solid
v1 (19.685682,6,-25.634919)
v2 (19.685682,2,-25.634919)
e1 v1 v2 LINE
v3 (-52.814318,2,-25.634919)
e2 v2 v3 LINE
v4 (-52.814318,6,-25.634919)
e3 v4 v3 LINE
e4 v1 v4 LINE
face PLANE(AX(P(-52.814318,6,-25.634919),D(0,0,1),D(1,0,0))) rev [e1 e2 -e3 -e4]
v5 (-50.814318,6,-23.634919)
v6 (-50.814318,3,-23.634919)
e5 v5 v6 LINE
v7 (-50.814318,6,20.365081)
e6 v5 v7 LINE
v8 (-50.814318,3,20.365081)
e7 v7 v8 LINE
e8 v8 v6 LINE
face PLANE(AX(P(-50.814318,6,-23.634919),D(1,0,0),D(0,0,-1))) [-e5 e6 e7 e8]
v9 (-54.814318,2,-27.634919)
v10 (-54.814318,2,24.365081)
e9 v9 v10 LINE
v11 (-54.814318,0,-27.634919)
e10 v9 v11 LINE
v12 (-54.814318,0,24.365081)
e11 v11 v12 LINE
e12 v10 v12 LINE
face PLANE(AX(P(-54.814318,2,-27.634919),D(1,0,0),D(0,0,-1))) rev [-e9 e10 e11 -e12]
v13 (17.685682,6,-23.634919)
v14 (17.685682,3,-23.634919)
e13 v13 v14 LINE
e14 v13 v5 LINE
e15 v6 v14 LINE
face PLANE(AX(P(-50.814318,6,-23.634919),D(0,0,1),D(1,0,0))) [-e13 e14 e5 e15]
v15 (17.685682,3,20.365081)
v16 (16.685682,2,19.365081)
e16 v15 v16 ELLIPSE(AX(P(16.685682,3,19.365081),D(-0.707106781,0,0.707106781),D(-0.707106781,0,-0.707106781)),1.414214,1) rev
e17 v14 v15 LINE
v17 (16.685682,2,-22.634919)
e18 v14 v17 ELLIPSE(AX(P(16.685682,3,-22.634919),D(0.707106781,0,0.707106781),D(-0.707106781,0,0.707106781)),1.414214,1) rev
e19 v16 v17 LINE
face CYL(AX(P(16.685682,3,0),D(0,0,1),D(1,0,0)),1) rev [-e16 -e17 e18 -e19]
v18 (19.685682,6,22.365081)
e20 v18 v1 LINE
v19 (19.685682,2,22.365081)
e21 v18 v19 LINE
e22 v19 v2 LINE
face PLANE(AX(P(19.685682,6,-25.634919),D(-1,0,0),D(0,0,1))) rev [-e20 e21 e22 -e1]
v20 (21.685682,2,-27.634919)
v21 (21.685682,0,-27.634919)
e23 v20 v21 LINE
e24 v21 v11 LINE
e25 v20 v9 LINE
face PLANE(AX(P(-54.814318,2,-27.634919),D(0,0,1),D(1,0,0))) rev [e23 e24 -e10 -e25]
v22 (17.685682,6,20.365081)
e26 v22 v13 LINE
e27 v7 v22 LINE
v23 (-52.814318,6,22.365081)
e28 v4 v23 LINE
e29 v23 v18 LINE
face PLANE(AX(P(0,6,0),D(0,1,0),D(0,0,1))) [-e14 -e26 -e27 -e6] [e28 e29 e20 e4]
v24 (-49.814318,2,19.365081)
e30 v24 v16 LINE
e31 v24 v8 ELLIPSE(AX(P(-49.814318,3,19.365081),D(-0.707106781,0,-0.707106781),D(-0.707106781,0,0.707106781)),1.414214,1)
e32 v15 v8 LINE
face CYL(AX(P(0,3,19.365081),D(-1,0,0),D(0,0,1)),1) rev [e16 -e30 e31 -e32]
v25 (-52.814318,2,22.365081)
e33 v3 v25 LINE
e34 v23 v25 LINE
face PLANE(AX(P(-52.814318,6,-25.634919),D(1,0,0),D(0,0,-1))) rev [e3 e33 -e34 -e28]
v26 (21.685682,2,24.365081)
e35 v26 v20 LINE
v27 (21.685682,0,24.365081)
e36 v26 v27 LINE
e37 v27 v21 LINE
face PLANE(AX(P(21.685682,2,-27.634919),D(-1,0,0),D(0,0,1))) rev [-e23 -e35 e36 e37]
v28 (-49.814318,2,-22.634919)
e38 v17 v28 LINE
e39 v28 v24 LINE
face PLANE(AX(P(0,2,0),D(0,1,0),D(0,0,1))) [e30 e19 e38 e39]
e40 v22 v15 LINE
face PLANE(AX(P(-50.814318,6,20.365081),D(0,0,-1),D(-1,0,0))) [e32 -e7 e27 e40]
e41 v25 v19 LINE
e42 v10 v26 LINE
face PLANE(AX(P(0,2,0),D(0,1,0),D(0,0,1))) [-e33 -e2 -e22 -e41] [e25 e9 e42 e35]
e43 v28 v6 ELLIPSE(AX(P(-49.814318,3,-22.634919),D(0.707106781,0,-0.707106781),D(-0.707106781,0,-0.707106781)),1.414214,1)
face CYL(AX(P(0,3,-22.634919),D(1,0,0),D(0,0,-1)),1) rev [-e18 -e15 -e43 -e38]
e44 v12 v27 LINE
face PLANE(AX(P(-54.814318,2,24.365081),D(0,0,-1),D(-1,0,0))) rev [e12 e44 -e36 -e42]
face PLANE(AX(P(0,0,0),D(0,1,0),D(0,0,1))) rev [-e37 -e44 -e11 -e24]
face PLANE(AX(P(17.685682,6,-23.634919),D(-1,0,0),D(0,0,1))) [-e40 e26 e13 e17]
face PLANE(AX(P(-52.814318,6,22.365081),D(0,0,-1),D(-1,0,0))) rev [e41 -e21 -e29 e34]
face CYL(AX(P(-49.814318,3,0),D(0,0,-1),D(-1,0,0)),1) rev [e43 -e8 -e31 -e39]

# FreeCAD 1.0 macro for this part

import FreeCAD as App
import Part
import Sketcher
from FreeCAD import Vector


def edges_at(feature, points):
    """Names of the edges that pass closest to the given points."""
    edges = feature.Shape.Edges
    near = lambda p: min(range(len(edges)), key=lambda i: edges[i].distToShape(Part.Vertex(*p))[0])
    return sorted({f"Edge{near(p) + 1}" for p in points})

doc = App.newDocument("Part")
params = doc.addObject("Spreadsheet::Sheet", "Params")
for row, (alias, value) in enumerate([
    ("sketch1_height", "52 mm"),
    ("sketch1_width", "76.5 mm"),
    ("pad1_length", "2 mm"),
    ("sketch2_height", "48 mm"),
    ("sketch2_height2", "44 mm"),
    ("sketch2_width", "72.5 mm"),
    ("sketch2_width2", "68.5 mm"),
    ("pad2_length", "4 mm"),
    ("fillet_radius", "1 mm"),
], start=1):
    params.set(f"A{row}", alias)
    params.set(f"B{row}", "=" + value)
    params.setAlias(f"B{row}", alias)

body = doc.addObject("PartDesign::Body", "Body")

sketch1 = body.newObject("Sketcher::SketchObject", "Sketch")
sketch1.AttachmentSupport = (doc.getObject("XZ_Plane"), [""])
sketch1.MapMode = "FlatFace"
sketch1.addGeometry([
    Part.LineSegment(Vector(-55, -28, 0), Vector(-55, 24, 0)),
    Part.LineSegment(Vector(-55, 24, 0), Vector(22, 24, 0)),
    Part.LineSegment(Vector(22, 24, 0), Vector(22, -28, 0)),
    Part.LineSegment(Vector(22, -28, 0), Vector(-55, -28, 0)),
], False)
sketch1.addConstraint([
    Sketcher.Constraint("Coincident", 0, 2, 1, 1),
    Sketcher.Constraint("Coincident", 1, 2, 2, 1),
    Sketcher.Constraint("Coincident", 2, 2, 3, 1),
    Sketcher.Constraint("Coincident", 3, 2, 0, 1),
    Sketcher.Constraint("Vertical", 0),
    Sketcher.Constraint("Horizontal", 1),
    Sketcher.Constraint("Vertical", 2),
    Sketcher.Constraint("Horizontal", 3),
    Sketcher.Constraint("DistanceY", 0, 1, 0, 2, 52.0),
    Sketcher.Constraint("DistanceX", 1, 1, 1, 2, 76.5),
    Sketcher.Constraint("DistanceY", -1, 1, 0, 2, 24.365081),
    Sketcher.Constraint("DistanceX", 0, 2, -1, 1, 54.814318),
])
sketch1.setExpression("Constraints[8]", "Params.sketch1_height")
sketch1.setExpression("Constraints[9]", "Params.sketch1_width")
pad1 = body.newObject("PartDesign::Pad", "Pad")
pad1.Profile = sketch1
pad1.setExpression("Length", "Params.pad1_length")
pad1.Reversed = True

sketch2 = body.newObject("Sketcher::SketchObject", "Sketch001")
sketch2.AttachmentSupport = (doc.getObject("XZ_Plane"), [""])
sketch2.MapMode = "FlatFace"
sketch2.AttachmentOffset = App.Placement(Vector(0, 0, -2), App.Rotation())
sketch2.addGeometry([
    Part.LineSegment(Vector(-53, -26, 0), Vector(-53, 22, 0)),
    Part.LineSegment(Vector(-53, 22, 0), Vector(20, 22, 0)),
    Part.LineSegment(Vector(20, 22, 0), Vector(20, -26, 0)),
    Part.LineSegment(Vector(20, -26, 0), Vector(-53, -26, 0)),
    Part.LineSegment(Vector(18, 20, 0), Vector(-51, 20, 0)),
    Part.LineSegment(Vector(-51, 20, 0), Vector(-51, -24, 0)),
    Part.LineSegment(Vector(-51, -24, 0), Vector(18, -24, 0)),
    Part.LineSegment(Vector(18, -24, 0), Vector(18, 20, 0)),
], False)
sketch2.addConstraint([
    Sketcher.Constraint("Coincident", 0, 2, 1, 1),
    Sketcher.Constraint("Coincident", 1, 2, 2, 1),
    Sketcher.Constraint("Coincident", 2, 2, 3, 1),
    Sketcher.Constraint("Coincident", 3, 2, 0, 1),
    Sketcher.Constraint("Coincident", 4, 2, 5, 1),
    Sketcher.Constraint("Coincident", 5, 2, 6, 1),
    Sketcher.Constraint("Coincident", 6, 2, 7, 1),
    Sketcher.Constraint("Coincident", 7, 2, 4, 1),
    Sketcher.Constraint("Vertical", 0),
    Sketcher.Constraint("Horizontal", 1),
    Sketcher.Constraint("Vertical", 2),
    Sketcher.Constraint("Horizontal", 3),
    Sketcher.Constraint("Horizontal", 4),
    Sketcher.Constraint("Vertical", 5),
    Sketcher.Constraint("Horizontal", 6),
    Sketcher.Constraint("Vertical", 7),
    Sketcher.Constraint("DistanceY", 0, 1, 0, 2, 48.0),
    Sketcher.Constraint("DistanceY", 5, 2, 5, 1, 44.0),
    Sketcher.Constraint("DistanceX", 1, 1, 1, 2, 72.5),
    Sketcher.Constraint("DistanceX", 4, 2, 4, 1, 68.5),
    Sketcher.Constraint("DistanceX", 0, 2, 4, 2, 2.0),
    Sketcher.Constraint("DistanceY", 4, 2, 0, 2, 2.0),
    Sketcher.Constraint("DistanceY", -1, 1, 0, 2, 22.365081),
    Sketcher.Constraint("DistanceX", 0, 2, -1, 1, 52.814318),
])
sketch2.setExpression("Constraints[16]", "Params.sketch2_height")
sketch2.setExpression("Constraints[17]", "Params.sketch2_height2")
sketch2.setExpression("Constraints[18]", "Params.sketch2_width")
sketch2.setExpression("Constraints[19]", "Params.sketch2_width2")
pad2 = body.newObject("PartDesign::Pad", "Pad001")
pad2.Profile = sketch2
pad2.setExpression("Length", "Params.pad2_length")
pad2.Reversed = True
doc.recompute()

fillet = body.newObject("PartDesign::Fillet", "Fillet")
fillet.Base = (pad2, edges_at(pad2, [
    (-50.814, 2, -1.635),
    (-16.564, 2, 20.365),
    (17.686, 2, -1.635),
    (-16.564, 2, -23.635),
]))
fillet.setExpression("Radius", "Params.fillet_radius")

doc.recompute()
